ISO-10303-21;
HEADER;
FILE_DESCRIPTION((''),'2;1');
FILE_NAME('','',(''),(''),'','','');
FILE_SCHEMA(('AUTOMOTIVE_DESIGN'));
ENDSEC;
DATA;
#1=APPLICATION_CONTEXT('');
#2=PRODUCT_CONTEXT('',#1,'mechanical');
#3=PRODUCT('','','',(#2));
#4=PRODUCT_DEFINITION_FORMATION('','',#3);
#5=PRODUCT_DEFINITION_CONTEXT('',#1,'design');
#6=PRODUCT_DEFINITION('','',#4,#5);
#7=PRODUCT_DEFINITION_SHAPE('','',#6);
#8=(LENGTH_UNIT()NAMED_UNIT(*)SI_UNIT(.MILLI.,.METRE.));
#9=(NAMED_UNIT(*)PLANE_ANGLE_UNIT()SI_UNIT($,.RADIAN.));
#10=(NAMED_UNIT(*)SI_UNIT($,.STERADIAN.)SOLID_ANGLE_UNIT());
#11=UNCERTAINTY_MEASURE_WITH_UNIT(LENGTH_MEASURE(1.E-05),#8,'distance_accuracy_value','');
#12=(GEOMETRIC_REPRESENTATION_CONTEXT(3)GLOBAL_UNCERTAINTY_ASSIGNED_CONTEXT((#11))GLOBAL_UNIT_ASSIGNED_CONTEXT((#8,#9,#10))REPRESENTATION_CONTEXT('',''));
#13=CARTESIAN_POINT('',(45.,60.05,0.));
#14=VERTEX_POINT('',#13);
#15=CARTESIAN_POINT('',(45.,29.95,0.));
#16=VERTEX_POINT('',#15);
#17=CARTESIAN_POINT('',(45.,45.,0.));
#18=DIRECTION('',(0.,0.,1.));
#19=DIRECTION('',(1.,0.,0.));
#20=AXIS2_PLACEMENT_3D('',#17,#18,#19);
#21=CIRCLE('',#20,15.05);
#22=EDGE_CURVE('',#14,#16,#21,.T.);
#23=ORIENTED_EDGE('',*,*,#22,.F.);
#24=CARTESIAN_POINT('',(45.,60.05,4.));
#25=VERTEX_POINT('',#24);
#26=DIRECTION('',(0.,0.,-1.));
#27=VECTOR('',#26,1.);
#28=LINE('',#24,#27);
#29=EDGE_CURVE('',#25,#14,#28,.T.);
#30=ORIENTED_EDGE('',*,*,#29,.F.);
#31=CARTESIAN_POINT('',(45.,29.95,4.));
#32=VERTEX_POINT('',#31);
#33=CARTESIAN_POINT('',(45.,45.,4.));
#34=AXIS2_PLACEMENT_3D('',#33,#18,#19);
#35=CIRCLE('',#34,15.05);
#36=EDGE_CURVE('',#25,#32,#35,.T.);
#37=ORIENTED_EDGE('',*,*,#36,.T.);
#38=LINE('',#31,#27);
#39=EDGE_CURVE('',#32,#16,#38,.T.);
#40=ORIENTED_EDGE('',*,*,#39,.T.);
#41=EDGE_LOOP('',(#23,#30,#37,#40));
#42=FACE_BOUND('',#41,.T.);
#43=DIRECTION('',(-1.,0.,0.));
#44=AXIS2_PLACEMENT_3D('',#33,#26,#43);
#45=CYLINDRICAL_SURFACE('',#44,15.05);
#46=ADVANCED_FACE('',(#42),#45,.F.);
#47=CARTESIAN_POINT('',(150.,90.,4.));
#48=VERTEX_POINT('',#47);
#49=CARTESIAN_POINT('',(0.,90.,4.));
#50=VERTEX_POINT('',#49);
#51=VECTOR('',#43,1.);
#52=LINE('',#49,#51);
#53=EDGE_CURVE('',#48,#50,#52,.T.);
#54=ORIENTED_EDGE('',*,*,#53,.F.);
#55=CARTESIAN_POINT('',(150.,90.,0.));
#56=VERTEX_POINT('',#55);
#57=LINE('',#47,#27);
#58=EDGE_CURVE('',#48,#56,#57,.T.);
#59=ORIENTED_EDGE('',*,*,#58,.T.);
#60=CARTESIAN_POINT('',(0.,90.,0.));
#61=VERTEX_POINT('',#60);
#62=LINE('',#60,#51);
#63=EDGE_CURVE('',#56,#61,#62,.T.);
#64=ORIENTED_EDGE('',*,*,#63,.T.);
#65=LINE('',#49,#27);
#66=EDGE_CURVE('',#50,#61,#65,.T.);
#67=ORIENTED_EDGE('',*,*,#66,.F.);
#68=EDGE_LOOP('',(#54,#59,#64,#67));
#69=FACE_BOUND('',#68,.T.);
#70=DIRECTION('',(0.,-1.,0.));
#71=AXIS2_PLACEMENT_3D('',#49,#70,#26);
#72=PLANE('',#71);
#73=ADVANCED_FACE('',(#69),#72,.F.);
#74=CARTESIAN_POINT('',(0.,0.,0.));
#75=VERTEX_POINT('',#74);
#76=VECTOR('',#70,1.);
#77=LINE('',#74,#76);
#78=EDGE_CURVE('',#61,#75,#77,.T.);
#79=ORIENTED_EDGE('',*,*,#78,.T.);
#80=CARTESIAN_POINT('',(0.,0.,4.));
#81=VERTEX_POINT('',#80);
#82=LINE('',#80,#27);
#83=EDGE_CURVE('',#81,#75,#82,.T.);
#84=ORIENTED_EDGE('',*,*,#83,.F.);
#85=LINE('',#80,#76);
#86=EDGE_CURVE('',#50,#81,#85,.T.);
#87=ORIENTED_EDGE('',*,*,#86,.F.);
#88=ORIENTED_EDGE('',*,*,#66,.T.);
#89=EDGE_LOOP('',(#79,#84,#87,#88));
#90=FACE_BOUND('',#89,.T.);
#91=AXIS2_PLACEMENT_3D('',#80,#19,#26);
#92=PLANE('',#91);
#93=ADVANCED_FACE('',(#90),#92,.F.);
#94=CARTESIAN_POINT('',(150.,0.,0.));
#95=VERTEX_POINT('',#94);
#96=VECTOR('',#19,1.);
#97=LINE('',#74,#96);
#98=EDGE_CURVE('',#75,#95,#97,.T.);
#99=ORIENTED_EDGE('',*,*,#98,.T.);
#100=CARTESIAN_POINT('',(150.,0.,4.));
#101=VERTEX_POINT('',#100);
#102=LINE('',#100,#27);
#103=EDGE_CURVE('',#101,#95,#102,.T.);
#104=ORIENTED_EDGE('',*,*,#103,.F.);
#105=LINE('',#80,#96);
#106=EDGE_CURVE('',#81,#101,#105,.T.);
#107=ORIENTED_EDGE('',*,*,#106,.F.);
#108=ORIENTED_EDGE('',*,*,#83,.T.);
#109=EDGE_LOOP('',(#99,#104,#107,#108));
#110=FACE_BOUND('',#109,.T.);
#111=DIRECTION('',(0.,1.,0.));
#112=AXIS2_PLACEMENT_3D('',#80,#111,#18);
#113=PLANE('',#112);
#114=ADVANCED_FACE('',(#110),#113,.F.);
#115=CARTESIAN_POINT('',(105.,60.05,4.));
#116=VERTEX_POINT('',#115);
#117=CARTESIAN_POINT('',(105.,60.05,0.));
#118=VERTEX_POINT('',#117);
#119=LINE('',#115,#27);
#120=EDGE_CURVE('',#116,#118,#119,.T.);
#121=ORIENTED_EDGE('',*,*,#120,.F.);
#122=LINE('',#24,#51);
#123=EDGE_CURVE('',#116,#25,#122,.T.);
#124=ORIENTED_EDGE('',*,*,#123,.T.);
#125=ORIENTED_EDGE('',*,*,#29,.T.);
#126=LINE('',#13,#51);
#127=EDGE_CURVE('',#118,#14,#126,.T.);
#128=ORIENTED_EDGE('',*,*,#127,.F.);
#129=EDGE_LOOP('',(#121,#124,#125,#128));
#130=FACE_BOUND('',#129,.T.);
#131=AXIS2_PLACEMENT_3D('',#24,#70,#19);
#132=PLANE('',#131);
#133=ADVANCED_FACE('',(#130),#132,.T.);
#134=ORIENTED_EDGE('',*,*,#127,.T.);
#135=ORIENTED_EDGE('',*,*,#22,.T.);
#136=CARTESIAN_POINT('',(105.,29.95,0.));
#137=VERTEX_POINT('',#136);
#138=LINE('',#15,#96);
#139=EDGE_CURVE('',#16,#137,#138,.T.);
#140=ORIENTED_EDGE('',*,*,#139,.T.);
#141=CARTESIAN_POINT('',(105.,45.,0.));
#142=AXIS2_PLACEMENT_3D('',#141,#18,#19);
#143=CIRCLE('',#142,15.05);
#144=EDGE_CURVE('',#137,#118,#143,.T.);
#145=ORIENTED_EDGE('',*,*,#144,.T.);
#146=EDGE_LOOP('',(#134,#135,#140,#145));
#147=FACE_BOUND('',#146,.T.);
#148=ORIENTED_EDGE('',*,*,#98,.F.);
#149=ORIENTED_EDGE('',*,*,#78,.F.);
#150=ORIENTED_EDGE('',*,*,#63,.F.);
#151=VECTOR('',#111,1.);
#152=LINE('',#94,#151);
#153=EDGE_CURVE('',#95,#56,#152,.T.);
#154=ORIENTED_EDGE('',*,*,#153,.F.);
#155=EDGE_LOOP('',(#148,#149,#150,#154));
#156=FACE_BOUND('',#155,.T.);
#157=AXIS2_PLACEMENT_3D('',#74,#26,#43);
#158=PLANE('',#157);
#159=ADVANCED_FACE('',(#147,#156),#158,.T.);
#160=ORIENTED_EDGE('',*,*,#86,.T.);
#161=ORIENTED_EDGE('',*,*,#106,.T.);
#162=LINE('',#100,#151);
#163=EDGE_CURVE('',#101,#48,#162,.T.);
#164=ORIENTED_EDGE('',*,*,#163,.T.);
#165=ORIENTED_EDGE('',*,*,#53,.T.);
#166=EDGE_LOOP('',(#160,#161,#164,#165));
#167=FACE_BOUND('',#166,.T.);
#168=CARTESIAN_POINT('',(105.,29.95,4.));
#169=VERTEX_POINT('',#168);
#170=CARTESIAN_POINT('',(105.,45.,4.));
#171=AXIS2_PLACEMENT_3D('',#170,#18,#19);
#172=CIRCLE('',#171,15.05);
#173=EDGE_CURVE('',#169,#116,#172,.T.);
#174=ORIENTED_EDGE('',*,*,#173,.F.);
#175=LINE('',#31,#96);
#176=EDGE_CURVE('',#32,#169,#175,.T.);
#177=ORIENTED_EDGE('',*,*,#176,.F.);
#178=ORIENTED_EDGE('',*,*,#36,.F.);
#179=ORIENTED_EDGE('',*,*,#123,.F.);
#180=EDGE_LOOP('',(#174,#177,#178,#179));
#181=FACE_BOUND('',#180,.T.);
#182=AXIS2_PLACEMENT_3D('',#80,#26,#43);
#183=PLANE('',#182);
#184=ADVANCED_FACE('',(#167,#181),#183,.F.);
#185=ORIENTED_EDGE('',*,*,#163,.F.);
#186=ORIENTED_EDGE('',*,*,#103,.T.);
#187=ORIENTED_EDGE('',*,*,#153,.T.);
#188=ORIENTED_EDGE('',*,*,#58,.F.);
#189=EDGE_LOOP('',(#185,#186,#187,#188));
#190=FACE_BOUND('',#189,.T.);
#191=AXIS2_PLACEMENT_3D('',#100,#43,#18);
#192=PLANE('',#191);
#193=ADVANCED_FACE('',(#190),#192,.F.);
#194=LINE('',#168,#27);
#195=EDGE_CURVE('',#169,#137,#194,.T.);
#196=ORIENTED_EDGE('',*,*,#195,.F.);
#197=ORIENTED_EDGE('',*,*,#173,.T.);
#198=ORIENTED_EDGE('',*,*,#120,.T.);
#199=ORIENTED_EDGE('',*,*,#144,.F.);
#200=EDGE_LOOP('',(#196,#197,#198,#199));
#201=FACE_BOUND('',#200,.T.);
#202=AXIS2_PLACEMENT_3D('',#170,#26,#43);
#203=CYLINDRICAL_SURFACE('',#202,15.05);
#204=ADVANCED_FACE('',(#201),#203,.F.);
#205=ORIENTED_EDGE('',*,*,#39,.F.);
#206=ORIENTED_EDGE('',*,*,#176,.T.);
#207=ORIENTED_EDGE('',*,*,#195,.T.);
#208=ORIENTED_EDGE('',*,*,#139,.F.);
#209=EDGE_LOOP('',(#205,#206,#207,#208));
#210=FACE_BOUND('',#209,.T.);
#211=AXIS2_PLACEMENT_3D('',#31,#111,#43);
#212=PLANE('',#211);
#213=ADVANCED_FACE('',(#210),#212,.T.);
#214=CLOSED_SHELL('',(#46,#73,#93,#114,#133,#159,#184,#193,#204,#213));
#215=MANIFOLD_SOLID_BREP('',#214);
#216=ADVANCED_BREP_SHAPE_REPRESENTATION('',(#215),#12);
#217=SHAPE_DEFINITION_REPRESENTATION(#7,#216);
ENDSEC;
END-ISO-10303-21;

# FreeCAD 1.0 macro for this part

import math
import FreeCAD as App
import Part
import Sketcher

doc = App.newDocument("Part")
body = doc.addObject("PartDesign::Body", "Body")

# Sketch on XY plane
sketch1 = doc.addObject("Sketcher::SketchObject", "Sketch")
body.addObject(sketch1)
sketch1.AttachmentSupport = (doc.XY_Plane, [""])
sketch1.MapMode = "FlatFace"
sketch1.addGeometry([
    Part.LineSegment(App.Vector(0, 90, 0), App.Vector(0, 0, 0)),  # 0
    Part.LineSegment(App.Vector(0, 0, 0), App.Vector(150, 0, 0)),  # 1
    Part.LineSegment(App.Vector(150, 0, 0), App.Vector(150, 90, 0)),  # 2
    Part.LineSegment(App.Vector(150, 90, 0), App.Vector(0, 90, 0)),  # 3
    Part.LineSegment(App.Vector(105, 29.95, 0), App.Vector(45, 29.95, 0)),  # 4
    Part.ArcOfCircle(Part.Circle(App.Vector(45, 45, 0), App.Vector(0, 0, 1), 15.05), math.radians(90), math.radians(270)),  # 5
    Part.LineSegment(App.Vector(45, 60.05, 0), App.Vector(105, 60.05, 0)),  # 6
    Part.ArcOfCircle(Part.Circle(App.Vector(105, 45, 0), App.Vector(0, 0, 1), 15.05), math.radians(-90), math.radians(90)),  # 7
], False)
sketch1.addConstraint([
    Sketcher.Constraint("Coincident", 0, 2, 1, 1),
    Sketcher.Constraint("Coincident", 1, 2, 2, 1),
    Sketcher.Constraint("Coincident", 2, 2, 3, 1),
    Sketcher.Constraint("Coincident", 3, 2, 0, 1),
    Sketcher.Constraint("Tangent", 4, 2, 5, 2),
    Sketcher.Constraint("Tangent", 5, 1, 6, 1),
    Sketcher.Constraint("Tangent", 6, 2, 7, 2),
    Sketcher.Constraint("Tangent", 7, 1, 4, 1),
    Sketcher.Constraint("Vertical", 0),
    Sketcher.Constraint("Horizontal", 1),
    Sketcher.Constraint("Vertical", 2),
    Sketcher.Constraint("Horizontal", 3),
    Sketcher.Constraint("Horizontal", 4),
    Sketcher.Constraint("Horizontal", 6),
    Sketcher.Constraint("Coincident", 0, 2, -1, 1),
    Sketcher.Constraint("DistanceX", 1, 1, 1, 2, 150.0),
    Sketcher.Constraint("DistanceX", 4, 2, 4, 1, 60.0),
    Sketcher.Constraint("DistanceY", 0, 2, 0, 1, 90.0),
    Sketcher.Constraint("Radius", 5, 15.05),
    Sketcher.Constraint("DistanceX", -1, 1, 5, 3, 45.0),
    Sketcher.Constraint("DistanceY", -1, 1, 5, 3, 45.0),
])
pad1 = doc.addObject("PartDesign::Pad", "Pad")
body.addObject(pad1)
pad1.Profile = sketch1
pad1.Length = 4

doc.recompute()
